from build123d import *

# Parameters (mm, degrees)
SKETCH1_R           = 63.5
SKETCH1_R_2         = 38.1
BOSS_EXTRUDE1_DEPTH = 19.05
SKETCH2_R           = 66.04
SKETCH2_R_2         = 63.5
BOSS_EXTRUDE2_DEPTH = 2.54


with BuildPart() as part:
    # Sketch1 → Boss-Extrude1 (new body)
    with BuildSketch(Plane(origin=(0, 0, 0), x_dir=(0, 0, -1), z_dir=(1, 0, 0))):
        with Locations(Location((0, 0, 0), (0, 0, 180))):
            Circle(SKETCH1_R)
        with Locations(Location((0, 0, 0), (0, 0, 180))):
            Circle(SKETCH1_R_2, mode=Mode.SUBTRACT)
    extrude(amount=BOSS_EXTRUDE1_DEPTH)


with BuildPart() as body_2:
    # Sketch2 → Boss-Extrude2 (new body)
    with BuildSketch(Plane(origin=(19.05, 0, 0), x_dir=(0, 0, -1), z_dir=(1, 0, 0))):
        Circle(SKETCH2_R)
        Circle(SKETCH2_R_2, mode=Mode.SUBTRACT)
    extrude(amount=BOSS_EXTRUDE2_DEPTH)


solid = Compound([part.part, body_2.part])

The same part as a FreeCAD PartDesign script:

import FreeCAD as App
import Part
import Sketcher
from FreeCAD import Vector
Q = App.Units.Quantity

doc = App.newDocument("Part")
body = doc.addObject("PartDesign::Body", "Body")

# Sketch on YZ plane
sketch1 = body.newObject("Sketcher::SketchObject", "Sketch")
sketch1.AttachmentSupport = (doc.getObject("YZ_Plane"), [""])
sketch1.MapMode = "FlatFace"
sketch1.addGeometry([
    Part.Circle(Vector(0, 0, 0), Vector(0, 0, 1), 64),
    Part.Circle(Vector(0, 0, 0), Vector(0, 0, 1), 38),
], False)
sketch1.addConstraint([
    Sketcher.Constraint("Coincident", 0, 3, -1, 1),
    Sketcher.Constraint("Coincident", 1, 3, -1, 1),
    Sketcher.Constraint("Diameter", 0, Q("5 in")),
    Sketcher.Constraint("Diameter", 1, Q("3 in")),
])
pad1 = body.newObject("PartDesign::Pad", "Pad")
pad1.Profile = sketch1
pad1.Length = Q("0.75 in")
body2 = doc.addObject("PartDesign::Body", "Body001")

# Sketch on YZ plane
sketch2 = body2.newObject("Sketcher::SketchObject", "Sketch001")
sketch2.AttachmentSupport = (doc.getObject("YZ_Plane001"), [""])
sketch2.MapMode = "FlatFace"
sketch2.AttachmentOffset = App.Placement(Vector(0, 0, 0.75 * 25.4), App.Rotation())
sketch2.addGeometry([
    Part.Circle(Vector(0, 0, 0), Vector(0, 0, 1), 66),
    Part.Circle(Vector(0, 0, 0), Vector(0, 0, 1), 64),
], False)
sketch2.addConstraint([
    Sketcher.Constraint("Coincident", 0, 3, -1, 1),
    Sketcher.Constraint("Coincident", 1, 3, -1, 1),
    Sketcher.Constraint("Diameter", 1, Q("5 in")),
    Sketcher.Constraint("Diameter", 0, Q("5.2 in")),
])
pad2 = body2.newObject("PartDesign::Pad", "Pad001")
pad2.Profile = sketch2
pad2.Length = Q("0.1 in")

doc.recompute()
